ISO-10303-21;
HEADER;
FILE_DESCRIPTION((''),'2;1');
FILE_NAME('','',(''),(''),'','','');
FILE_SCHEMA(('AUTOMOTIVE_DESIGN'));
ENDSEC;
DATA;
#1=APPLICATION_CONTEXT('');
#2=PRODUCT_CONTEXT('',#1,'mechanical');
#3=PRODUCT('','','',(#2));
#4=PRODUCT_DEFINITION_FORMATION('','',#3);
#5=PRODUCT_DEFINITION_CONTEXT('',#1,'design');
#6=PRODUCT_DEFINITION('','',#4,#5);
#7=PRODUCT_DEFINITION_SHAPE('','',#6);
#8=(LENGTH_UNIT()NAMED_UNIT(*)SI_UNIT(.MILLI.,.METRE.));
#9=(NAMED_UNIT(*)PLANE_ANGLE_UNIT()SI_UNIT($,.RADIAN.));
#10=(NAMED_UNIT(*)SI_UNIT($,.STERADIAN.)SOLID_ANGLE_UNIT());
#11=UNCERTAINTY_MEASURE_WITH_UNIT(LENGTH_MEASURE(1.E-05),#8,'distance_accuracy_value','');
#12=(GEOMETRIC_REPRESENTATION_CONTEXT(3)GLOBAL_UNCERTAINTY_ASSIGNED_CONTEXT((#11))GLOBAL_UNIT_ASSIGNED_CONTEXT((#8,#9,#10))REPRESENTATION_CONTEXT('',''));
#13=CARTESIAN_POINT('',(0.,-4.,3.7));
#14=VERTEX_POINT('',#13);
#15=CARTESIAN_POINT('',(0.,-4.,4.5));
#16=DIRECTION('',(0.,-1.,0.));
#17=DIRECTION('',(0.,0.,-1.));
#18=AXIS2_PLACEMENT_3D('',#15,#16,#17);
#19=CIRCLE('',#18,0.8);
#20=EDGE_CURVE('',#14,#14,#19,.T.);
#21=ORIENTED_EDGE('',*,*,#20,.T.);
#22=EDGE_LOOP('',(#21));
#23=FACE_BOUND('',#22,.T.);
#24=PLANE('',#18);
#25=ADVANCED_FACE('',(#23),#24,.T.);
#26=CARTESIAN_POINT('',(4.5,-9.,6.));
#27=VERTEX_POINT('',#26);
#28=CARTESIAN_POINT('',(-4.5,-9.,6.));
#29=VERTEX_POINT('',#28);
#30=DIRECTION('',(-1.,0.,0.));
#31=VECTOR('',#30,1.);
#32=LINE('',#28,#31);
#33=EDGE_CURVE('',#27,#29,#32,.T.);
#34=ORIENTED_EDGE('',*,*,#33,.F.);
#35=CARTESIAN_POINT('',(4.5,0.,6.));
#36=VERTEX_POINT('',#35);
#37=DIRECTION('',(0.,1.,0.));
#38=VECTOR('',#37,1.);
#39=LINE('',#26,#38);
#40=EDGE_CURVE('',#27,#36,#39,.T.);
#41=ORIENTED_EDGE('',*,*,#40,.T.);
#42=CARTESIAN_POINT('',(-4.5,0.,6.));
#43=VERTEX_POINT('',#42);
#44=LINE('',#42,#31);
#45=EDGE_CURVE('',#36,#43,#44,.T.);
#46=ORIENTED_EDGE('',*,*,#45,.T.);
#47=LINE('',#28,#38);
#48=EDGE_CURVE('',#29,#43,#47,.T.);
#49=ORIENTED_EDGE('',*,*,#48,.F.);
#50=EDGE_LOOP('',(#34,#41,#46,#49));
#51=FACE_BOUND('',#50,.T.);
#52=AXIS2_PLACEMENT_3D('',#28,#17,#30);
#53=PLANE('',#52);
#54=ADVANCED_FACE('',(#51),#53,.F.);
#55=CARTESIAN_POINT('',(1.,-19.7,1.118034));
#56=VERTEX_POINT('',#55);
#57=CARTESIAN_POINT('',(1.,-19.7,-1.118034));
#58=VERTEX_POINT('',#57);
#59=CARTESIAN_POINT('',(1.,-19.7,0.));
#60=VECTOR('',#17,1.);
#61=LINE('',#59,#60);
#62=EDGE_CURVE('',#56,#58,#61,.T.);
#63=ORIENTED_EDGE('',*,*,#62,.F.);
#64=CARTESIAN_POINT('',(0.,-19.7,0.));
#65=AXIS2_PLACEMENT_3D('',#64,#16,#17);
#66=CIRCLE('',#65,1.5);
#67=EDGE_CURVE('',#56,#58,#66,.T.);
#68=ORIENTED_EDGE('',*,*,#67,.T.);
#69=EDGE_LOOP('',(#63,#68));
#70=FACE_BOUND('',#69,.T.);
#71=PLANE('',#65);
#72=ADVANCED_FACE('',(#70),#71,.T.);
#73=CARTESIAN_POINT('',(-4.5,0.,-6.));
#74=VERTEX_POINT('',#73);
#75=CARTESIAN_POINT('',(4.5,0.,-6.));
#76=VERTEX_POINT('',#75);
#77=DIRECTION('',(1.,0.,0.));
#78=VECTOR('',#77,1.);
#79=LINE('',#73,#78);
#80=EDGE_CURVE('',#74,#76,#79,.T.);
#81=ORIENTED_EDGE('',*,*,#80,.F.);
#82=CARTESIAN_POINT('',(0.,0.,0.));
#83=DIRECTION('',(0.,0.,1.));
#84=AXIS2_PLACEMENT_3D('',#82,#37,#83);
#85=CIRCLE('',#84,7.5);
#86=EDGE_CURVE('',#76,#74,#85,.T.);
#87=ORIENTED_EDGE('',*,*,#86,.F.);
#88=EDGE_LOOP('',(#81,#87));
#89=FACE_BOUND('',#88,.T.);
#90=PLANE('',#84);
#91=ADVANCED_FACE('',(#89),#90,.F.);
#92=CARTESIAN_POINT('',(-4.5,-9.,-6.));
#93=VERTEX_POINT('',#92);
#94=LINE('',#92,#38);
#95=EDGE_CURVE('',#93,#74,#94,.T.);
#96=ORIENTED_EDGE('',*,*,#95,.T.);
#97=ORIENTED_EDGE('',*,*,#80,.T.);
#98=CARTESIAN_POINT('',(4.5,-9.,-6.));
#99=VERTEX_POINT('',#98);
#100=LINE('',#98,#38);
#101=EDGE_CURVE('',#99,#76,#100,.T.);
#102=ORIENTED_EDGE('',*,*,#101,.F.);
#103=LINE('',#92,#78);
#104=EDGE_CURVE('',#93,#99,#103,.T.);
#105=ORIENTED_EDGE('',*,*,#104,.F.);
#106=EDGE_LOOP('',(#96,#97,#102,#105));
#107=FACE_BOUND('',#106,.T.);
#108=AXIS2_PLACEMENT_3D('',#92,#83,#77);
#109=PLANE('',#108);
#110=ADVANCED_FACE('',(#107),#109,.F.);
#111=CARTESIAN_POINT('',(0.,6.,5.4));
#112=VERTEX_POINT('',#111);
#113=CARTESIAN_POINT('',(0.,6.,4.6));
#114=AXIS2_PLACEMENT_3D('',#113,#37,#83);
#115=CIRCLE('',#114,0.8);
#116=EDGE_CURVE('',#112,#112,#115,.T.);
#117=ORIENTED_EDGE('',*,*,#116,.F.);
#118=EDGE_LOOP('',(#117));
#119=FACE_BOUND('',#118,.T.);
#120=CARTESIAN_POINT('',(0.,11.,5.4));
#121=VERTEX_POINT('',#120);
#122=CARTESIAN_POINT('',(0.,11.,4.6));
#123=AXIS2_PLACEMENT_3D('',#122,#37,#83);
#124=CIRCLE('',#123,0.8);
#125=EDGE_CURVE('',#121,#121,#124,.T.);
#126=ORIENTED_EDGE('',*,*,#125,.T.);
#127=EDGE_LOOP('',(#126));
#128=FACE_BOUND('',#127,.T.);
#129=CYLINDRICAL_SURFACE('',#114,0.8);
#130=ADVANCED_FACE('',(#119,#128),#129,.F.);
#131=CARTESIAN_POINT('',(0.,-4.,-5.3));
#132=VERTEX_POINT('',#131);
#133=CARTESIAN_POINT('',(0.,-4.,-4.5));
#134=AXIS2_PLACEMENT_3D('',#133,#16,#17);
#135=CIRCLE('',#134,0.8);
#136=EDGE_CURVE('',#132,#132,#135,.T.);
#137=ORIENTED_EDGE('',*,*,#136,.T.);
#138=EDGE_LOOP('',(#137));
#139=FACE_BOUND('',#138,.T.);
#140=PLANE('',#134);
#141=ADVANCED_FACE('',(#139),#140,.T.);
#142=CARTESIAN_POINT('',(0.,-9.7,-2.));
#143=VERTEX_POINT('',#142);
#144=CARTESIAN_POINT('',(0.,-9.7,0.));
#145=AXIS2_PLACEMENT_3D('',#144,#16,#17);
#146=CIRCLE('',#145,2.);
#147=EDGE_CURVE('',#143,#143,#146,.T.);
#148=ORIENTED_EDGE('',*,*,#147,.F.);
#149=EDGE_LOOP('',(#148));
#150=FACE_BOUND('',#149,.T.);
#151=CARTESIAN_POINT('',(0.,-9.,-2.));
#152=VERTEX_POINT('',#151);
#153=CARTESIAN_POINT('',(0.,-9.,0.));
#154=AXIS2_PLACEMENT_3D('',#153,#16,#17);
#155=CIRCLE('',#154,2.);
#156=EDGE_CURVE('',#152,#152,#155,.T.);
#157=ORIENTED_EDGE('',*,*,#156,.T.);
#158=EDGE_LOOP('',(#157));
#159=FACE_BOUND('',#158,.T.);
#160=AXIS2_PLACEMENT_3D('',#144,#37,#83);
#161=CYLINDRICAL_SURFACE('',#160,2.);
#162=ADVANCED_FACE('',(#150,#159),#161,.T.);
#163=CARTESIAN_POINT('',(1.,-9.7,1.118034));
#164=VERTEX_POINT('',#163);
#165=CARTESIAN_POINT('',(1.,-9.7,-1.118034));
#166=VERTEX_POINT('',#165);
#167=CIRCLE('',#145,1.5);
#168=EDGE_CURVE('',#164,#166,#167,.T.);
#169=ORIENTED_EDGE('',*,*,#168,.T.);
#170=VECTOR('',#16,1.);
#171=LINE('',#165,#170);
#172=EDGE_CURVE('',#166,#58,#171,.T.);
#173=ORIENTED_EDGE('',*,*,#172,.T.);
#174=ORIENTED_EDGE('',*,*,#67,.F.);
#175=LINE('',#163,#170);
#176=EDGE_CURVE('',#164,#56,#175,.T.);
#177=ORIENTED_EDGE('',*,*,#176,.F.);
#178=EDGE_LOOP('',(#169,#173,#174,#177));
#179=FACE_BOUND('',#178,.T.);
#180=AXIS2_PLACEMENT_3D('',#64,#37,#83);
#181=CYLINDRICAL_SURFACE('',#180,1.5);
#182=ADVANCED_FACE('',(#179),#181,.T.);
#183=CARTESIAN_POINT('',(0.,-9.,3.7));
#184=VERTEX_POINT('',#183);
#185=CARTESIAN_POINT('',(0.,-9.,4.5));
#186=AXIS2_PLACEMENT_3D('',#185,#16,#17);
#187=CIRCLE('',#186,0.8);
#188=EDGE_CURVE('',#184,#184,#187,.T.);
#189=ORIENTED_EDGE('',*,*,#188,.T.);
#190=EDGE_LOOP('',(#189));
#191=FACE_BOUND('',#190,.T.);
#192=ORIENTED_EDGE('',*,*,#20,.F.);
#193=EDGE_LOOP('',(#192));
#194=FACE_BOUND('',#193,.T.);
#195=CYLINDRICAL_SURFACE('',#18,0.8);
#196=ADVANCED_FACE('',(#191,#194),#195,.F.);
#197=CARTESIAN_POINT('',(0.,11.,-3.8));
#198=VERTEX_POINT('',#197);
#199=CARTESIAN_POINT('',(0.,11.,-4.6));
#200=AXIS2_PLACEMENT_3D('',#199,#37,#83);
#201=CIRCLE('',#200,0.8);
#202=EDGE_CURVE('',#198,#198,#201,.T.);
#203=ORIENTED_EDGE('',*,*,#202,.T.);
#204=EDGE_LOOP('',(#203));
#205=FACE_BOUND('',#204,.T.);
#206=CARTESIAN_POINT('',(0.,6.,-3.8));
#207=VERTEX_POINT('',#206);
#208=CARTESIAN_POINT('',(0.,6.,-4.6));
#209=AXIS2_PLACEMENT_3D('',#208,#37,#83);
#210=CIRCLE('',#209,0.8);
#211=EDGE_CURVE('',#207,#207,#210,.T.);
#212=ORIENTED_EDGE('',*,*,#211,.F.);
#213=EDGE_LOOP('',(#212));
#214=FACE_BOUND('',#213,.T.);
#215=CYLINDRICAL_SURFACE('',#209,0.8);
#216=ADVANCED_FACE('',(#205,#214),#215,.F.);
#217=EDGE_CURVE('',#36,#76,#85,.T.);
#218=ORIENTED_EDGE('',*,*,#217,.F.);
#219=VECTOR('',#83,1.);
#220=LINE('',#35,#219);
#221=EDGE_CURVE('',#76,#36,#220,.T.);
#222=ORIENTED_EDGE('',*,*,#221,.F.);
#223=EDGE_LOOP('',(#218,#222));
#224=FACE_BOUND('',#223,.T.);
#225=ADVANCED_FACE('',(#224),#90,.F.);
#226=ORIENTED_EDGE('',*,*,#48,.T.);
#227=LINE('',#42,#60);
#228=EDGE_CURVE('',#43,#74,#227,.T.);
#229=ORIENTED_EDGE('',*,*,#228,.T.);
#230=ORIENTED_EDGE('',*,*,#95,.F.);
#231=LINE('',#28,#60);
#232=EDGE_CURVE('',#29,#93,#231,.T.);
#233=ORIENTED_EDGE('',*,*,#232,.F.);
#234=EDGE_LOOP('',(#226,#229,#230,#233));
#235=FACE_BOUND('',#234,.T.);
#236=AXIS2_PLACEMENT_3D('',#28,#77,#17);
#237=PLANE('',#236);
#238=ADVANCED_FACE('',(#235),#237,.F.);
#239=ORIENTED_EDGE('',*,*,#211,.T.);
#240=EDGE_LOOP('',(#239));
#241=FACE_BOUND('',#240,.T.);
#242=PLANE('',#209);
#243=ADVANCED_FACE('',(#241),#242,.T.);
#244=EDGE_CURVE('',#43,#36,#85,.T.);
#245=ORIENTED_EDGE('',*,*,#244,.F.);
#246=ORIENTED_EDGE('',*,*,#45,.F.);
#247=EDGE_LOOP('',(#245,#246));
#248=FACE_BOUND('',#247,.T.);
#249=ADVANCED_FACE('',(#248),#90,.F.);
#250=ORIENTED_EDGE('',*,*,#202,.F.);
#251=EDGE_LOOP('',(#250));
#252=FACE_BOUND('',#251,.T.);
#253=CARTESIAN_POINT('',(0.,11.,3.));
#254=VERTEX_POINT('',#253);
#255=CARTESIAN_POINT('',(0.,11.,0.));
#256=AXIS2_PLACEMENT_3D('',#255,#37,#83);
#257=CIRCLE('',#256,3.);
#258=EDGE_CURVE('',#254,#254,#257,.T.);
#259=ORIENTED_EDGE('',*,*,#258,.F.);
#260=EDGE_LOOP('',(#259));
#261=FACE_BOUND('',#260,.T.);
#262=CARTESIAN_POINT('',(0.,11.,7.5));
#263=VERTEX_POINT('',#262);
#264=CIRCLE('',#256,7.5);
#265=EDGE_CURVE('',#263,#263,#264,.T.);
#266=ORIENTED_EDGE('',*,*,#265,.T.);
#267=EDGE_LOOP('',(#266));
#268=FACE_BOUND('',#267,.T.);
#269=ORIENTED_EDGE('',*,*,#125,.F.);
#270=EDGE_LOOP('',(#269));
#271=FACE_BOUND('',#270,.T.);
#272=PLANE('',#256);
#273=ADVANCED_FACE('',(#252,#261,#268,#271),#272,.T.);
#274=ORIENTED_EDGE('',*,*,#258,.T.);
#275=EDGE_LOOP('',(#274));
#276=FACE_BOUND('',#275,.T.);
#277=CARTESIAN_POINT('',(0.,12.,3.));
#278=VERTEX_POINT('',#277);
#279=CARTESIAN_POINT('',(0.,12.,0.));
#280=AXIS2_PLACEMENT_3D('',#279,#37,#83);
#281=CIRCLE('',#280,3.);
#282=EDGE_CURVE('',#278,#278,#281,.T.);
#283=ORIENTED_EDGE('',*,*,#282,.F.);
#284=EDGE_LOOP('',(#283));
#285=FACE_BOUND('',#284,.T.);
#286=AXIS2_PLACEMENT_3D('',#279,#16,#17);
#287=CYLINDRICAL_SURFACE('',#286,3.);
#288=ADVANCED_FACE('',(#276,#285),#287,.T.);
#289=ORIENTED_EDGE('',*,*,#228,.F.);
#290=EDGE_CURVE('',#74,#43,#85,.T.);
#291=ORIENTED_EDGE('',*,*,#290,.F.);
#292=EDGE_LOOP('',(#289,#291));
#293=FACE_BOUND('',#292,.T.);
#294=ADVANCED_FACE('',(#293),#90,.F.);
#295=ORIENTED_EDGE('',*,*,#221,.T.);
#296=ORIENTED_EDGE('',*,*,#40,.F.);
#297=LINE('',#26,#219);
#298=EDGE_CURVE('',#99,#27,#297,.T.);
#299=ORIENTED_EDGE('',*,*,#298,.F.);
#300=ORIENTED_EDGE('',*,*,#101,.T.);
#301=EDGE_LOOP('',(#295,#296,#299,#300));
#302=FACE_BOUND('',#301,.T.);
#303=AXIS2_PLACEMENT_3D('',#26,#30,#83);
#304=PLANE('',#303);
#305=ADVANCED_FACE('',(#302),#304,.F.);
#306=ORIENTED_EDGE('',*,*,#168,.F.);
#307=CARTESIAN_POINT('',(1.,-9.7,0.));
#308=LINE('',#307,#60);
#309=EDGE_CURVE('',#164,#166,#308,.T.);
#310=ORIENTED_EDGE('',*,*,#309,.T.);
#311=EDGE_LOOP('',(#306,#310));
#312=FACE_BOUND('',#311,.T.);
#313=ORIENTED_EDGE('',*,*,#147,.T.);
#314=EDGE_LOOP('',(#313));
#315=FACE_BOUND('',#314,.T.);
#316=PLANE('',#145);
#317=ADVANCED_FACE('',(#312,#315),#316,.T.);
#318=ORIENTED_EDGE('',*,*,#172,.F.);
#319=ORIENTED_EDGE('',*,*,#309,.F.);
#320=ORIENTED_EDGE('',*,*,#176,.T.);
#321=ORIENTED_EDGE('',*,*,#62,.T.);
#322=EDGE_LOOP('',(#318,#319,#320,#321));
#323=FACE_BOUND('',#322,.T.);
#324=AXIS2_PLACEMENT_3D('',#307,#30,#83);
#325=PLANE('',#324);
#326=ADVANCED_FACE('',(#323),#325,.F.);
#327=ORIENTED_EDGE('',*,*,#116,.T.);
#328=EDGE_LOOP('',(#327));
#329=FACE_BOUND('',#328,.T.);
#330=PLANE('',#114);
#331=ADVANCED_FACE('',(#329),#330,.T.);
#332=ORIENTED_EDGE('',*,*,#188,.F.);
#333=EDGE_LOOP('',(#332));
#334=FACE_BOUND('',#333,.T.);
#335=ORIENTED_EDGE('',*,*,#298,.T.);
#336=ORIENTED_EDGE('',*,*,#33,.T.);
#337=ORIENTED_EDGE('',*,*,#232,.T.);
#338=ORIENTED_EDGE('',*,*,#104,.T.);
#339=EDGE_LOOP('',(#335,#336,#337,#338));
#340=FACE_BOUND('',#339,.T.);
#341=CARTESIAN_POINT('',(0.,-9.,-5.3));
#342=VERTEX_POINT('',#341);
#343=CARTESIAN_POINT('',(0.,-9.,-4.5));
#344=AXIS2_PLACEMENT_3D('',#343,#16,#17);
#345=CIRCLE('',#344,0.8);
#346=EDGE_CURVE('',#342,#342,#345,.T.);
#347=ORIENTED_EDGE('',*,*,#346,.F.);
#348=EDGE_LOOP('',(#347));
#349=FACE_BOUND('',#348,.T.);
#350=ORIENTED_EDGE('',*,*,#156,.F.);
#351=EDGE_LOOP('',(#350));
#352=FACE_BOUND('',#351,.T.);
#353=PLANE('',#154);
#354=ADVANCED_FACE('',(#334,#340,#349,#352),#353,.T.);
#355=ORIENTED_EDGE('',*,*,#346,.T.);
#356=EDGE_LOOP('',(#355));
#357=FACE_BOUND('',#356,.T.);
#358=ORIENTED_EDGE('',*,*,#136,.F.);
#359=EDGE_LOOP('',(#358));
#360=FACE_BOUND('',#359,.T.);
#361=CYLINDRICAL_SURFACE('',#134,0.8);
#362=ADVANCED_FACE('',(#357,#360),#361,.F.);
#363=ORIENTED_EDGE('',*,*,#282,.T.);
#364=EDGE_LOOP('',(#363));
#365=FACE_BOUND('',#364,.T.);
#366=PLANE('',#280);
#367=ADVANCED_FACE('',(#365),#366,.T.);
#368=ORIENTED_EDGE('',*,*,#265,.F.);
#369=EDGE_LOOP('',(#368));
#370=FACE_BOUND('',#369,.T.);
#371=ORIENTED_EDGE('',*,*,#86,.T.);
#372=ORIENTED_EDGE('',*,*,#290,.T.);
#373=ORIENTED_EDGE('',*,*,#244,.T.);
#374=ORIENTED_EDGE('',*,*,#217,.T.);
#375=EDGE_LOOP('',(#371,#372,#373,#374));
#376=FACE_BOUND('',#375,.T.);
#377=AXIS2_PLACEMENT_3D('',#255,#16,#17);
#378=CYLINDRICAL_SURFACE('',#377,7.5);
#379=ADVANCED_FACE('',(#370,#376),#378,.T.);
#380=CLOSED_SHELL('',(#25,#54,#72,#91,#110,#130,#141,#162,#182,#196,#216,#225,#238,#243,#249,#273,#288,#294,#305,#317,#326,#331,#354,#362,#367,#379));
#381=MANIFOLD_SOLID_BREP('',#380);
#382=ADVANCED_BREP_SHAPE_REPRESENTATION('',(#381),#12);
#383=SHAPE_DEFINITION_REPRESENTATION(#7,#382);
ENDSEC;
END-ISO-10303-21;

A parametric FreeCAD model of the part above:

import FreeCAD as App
import Part
import Sketcher

V = App.Vector


def add_polygon(sketch, points):
    """Adds a closed chain of lines whose ends are joined by coincident constraints."""
    first, n = sketch.GeometryCount, len(points)
    for a, b in zip(points, points[1:] + points[:1]):
        sketch.addGeometry(Part.LineSegment(App.Vector(*a, 0), App.Vector(*b, 0)), False)
    for i in range(n):
        sketch.addConstraint(Sketcher.Constraint("Coincident", first + i, 2, first + (i + 1) % n, 1))

doc = App.newDocument("Part")
params = doc.addObject("Spreadsheet::Sheet", "Params")
for row, (alias, value) in enumerate([
    ("sketch1_diameter", "15 mm"),
    ("pad1_length", "11 mm"),
    ("sketch2_diameter", "6 mm"),
    ("pad2_length", "1 mm"),
    ("sketch3_width", "9 mm"),
    ("sketch3_height", "12 mm"),
    ("pad3_length", "9 mm"),
    ("sketch4_diameter", "4 mm"),
    ("pad4_length", "0.7 mm"),
    ("sketch5_diameter", "3 mm"),
    ("pad5_length", "10 mm"),
    ("pocket1_length", "10 mm"),
    ("sketch7_diameter", "1.6 mm"),
    ("pocket2_length", "5 mm"),
    ("sketch8_diameter", "1.6 mm"),
    ("pocket3_length", "5 mm"),
], start=1):
    params.set(f"A{row}", alias)
    params.set(f"B{row}", "=" + value)
    params.setAlias(f"B{row}", alias)

body = doc.addObject("PartDesign::Body", "Body")

# Sketch on XZ plane
sketch1 = doc.addObject("Sketcher::SketchObject", "Sketch")
body.addObject(sketch1)
sketch1.AttachmentSupport = (doc.XZ_Plane, [""])
sketch1.MapMode = "FlatFace"
sketch1.addGeometry(Part.Circle(V(0, 0, 0), V(0, 0, 1), 7.5), False)
sketch1.addConstraint([
    Sketcher.Constraint("Coincident", 0, 3, -1, 1),
    Sketcher.Constraint("Diameter", 0, 15.0),
])
sketch1.setExpression("Constraints[1]", "Params.sketch1_diameter")
pad1 = doc.addObject("PartDesign::Pad", "Pad")
body.addObject(pad1)
pad1.Profile = sketch1
pad1.setExpression("Length", "Params.pad1_length")
pad1.Reversed = True

# Sketch on XZ plane
sketch2 = doc.addObject("Sketcher::SketchObject", "Sketch001")
body.addObject(sketch2)
sketch2.AttachmentSupport = (doc.XZ_Plane, [""])
sketch2.MapMode = "FlatFace"
sketch2.AttachmentOffset = App.Placement(V(0, 0, -11), App.Rotation())
sketch2.addGeometry(Part.Circle(V(0, 0, 0), V(0, 0, 1), 3), False)
sketch2.addConstraint([
    Sketcher.Constraint("Coincident", 0, 3, -1, 1),
    Sketcher.Constraint("Diameter", 0, 6.0),
])
sketch2.setExpression("Constraints[1]", "Params.sketch2_diameter")
pad2 = doc.addObject("PartDesign::Pad", "Pad001")
body.addObject(pad2)
pad2.Profile = sketch2
pad2.setExpression("Length", "Params.pad2_length")
pad2.Reversed = True

# Sketch on XZ plane
sketch3 = doc.addObject("Sketcher::SketchObject", "Sketch002")
body.addObject(sketch3)
sketch3.AttachmentSupport = (doc.XZ_Plane, [""])
sketch3.MapMode = "FlatFace"
add_polygon(sketch3, [(-4.5, 6), (-4.5, -6), (4.5, -6), (4.5, 6)])  # lines 0-3
sketch3.addConstraint([
    Sketcher.Constraint("Vertical", 0),
    Sketcher.Constraint("Horizontal", 1),
    Sketcher.Constraint("Vertical", 2),
    Sketcher.Constraint("Horizontal", 3),
    Sketcher.Constraint("Symmetric", 0, 2, 2, 2, -1, 1),
    Sketcher.Constraint("DistanceX", 1, 1, 1, 2, 9.0),
    Sketcher.Constraint("DistanceY", 0, 2, 0, 1, 12.0),
])
sketch3.setExpression("Constraints[9]", "Params.sketch3_width")
sketch3.setExpression("Constraints[10]", "Params.sketch3_height")
pad3 = doc.addObject("PartDesign::Pad", "Pad002")
body.addObject(pad3)
pad3.Profile = sketch3
pad3.setExpression("Length", "Params.pad3_length")

# Sketch on XZ plane
sketch4 = doc.addObject("Sketcher::SketchObject", "Sketch003")
body.addObject(sketch4)
sketch4.AttachmentSupport = (doc.XZ_Plane, [""])
sketch4.MapMode = "FlatFace"
sketch4.AttachmentOffset = App.Placement(V(0, 0, 9), App.Rotation())
sketch4.addGeometry(Part.Circle(V(0, 0, 0), V(0, 0, 1), 2), False)
sketch4.addConstraint([
    Sketcher.Constraint("Coincident", 0, 3, -1, 1),
    Sketcher.Constraint("Diameter", 0, 4.0),
])
sketch4.setExpression("Constraints[1]", "Params.sketch4_diameter")
pad4 = doc.addObject("PartDesign::Pad", "Pad003")
body.addObject(pad4)
pad4.Profile = sketch4
pad4.setExpression("Length", "Params.pad4_length")

# Sketch on XZ plane
sketch5 = doc.addObject("Sketcher::SketchObject", "Sketch004")
body.addObject(sketch5)
sketch5.AttachmentSupport = (doc.XZ_Plane, [""])
sketch5.MapMode = "FlatFace"
sketch5.AttachmentOffset = App.Placement(V(0, 0, 9.7), App.Rotation())
sketch5.addGeometry(Part.Circle(V(0, 0, 0), V(0, 0, 1), 1.5), False)
sketch5.addConstraint([
    Sketcher.Constraint("Coincident", 0, 3, -1, 1),
    Sketcher.Constraint("Diameter", 0, 3.0),
])
sketch5.setExpression("Constraints[1]", "Params.sketch5_diameter")
pad5 = doc.addObject("PartDesign::Pad", "Pad004")
body.addObject(pad5)
pad5.Profile = sketch5
pad5.setExpression("Length", "Params.pad5_length")

# Sketch on XZ plane
sketch6 = doc.addObject("Sketcher::SketchObject", "Sketch005")
body.addObject(sketch6)
sketch6.AttachmentSupport = (doc.XZ_Plane, [""])
sketch6.MapMode = "FlatFace"
sketch6.AttachmentOffset = App.Placement(V(0, 0, 19.7), App.Rotation())
add_polygon(sketch6, [(1, 35.327165), (1, -35.327165), (69.418263, -35.327165), (69.418263, 35.327165)])  # lines 0-3
sketch6.addConstraint([
    Sketcher.Constraint("Vertical", 0),
    Sketcher.Constraint("Horizontal", 1),
    Sketcher.Constraint("Vertical", 2),
    Sketcher.Constraint("Horizontal", 3),
    Sketcher.Constraint("DistanceX", -1, 1, 0, 2, 1.0),
    Sketcher.Constraint("DistanceY", 0, 2, 0, 1, 70.654331),
    Sketcher.Constraint("DistanceX", 1, 1, 1, 2, 68.418263),
    Sketcher.Constraint("DistanceY", 0, 2, -1, 1, 35.327165),
])
pocket1 = doc.addObject("PartDesign::Pocket", "Pocket")
body.addObject(pocket1)
pocket1.Profile = sketch6
pocket1.setExpression("Length", "Params.pocket1_length")

# Sketch on XZ plane
sketch7 = doc.addObject("Sketcher::SketchObject", "Sketch006")
body.addObject(sketch7)
sketch7.AttachmentSupport = (doc.XZ_Plane, [""])
sketch7.MapMode = "FlatFace"
sketch7.AttachmentOffset = App.Placement(V(0, 0, 9), App.Rotation())
sketch7.addGeometry([
    Part.Circle(V(0, 4.5, 0), V(0, 0, 1), 0.8),
    Part.Circle(V(0, -4.5, 0), V(0, 0, 1), 0.8),
], False)
sketch7.addConstraint([
    Sketcher.Constraint("Equal", 0, 1),
    Sketcher.Constraint("Symmetric", 0, 3, 1, 3, -1, 1),
    Sketcher.Constraint("PointOnObject", 0, 3, -2),
    Sketcher.Constraint("Diameter", 0, 1.6),
    Sketcher.Constraint("DistanceY", 1, 3, 0, 3, 9.0),
])
sketch7.setExpression("Constraints[3]", "Params.sketch7_diameter")
pocket2 = doc.addObject("PartDesign::Pocket", "Pocket001")
body.addObject(pocket2)
pocket2.Profile = sketch7
pocket2.setExpression("Length", "Params.pocket2_length")

# Sketch on XZ plane
sketch8 = doc.addObject("Sketcher::SketchObject", "Sketch007")
body.addObject(sketch8)
sketch8.AttachmentSupport = (doc.XZ_Plane, [""])
sketch8.MapMode = "FlatFace"
sketch8.AttachmentOffset = App.Placement(V(0, 0, -11), App.Rotation())
sketch8.addGeometry([
    Part.Circle(V(0, -4.6, 0), V(0, 0, 1), 0.8),
    Part.Circle(V(0, 4.6, 0), V(0, 0, 1), 0.8),
], False)
sketch8.addConstraint([
    Sketcher.Constraint("Equal", 0, 1),
    Sketcher.Constraint("Symmetric", 0, 3, 1, 3, -1, 1),
    Sketcher.Constraint("PointOnObject", 0, 3, -2),
    Sketcher.Constraint("Diameter", 0, 1.6),
    Sketcher.Constraint("DistanceY", 0, 3, -1, 1, 4.6),
])
sketch8.setExpression("Constraints[3]", "Params.sketch8_diameter")
pocket3 = doc.addObject("PartDesign::Pocket", "Pocket002")
body.addObject(pocket3)
pocket3.Profile = sketch8
pocket3.setExpression("Length", "Params.pocket3_length")
pocket3.Reversed = True

doc.recompute()
